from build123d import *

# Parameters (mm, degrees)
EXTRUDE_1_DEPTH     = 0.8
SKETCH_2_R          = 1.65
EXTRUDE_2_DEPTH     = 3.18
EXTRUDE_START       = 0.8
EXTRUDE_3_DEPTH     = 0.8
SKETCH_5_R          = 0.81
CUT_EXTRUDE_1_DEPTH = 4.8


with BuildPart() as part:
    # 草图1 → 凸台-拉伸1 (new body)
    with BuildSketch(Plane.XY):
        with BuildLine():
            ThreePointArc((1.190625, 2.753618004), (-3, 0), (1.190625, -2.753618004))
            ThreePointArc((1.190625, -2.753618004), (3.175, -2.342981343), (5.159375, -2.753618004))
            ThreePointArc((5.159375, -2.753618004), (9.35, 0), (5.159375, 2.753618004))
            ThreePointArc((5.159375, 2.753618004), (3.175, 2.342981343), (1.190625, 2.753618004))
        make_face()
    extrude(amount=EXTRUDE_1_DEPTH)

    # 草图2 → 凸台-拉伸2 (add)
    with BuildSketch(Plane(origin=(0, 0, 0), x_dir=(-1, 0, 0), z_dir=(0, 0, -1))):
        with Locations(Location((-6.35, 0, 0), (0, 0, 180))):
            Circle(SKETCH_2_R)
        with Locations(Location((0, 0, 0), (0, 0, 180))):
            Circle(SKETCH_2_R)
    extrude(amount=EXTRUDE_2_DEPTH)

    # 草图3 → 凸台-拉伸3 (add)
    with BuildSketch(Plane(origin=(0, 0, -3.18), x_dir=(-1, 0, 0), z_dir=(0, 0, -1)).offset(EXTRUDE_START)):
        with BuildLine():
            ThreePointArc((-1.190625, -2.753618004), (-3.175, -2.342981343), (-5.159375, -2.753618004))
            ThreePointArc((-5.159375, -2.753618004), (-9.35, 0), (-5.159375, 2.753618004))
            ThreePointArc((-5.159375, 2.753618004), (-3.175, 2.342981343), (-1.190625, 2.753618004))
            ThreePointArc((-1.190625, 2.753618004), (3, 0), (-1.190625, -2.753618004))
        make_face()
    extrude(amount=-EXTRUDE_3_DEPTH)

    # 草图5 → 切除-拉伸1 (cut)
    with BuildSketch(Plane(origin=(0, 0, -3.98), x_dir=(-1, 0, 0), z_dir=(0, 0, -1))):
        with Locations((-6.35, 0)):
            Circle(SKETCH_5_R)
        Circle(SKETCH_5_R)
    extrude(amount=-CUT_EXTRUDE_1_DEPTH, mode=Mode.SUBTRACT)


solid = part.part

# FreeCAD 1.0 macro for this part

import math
import FreeCAD as App
import Part
import Sketcher

V = App.Vector
Q = App.Units.Quantity

doc = App.newDocument("Part")
body = doc.addObject("PartDesign::Body", "Body")

# Sketch on XY plane
sketch1 = doc.addObject("Sketcher::SketchObject", "Sketch")
body.addObject(sketch1)
sketch1.AttachmentSupport = (doc.XY_Plane, [""])
sketch1.MapMode = "FlatFace"
sketch1.addGeometry([
    Part.ArcOfCircle(Part.Circle(V(0, 0, 0), V(0, 0, 1), 3), math.radians(66.617036), math.radians(293.382964)),
    Part.ArcOfCircle(Part.Circle(V(3.175, -7.342981, 0), V(0, 0, 1), 5), math.radians(66.617036), math.radians(113.382964)),
    Part.ArcOfCircle(Part.Circle(V(6.35, 0, 0), V(0, 0, 1), 3), math.radians(-113.382964), math.radians(113.382964)),
    Part.ArcOfCircle(Part.Circle(V(3.175, 7.342981, 0), V(0, 0, 1), 5), math.radians(-113.382964), math.radians(-66.617036)),
], False)
sketch1.addConstraint([
    Sketcher.Constraint("Tangent", 0, 2, 1, 2),
    Sketcher.Constraint("Tangent", 1, 1, 2, 1),
    Sketcher.Constraint("Tangent", 2, 2, 3, 2),
    Sketcher.Constraint("Tangent", 3, 1, 0, 1),
    Sketcher.Constraint("Coincident", 0, 3, -1, 1),
    Sketcher.Constraint("Equal", 0, 2),
    Sketcher.Constraint("Equal", 1, 3),
    Sketcher.Constraint("PointOnObject", 2, 3, -1),
    Sketcher.Constraint("Radius", 0, Q("3 mm")),
    Sketcher.Constraint("Radius", 1, Q("5 mm")),
    Sketcher.Constraint("DistanceX", -1, 1, 2, 3, Q("6.35 mm")),
])
pad1 = doc.addObject("PartDesign::Pad", "Pad")
body.addObject(pad1)
pad1.Profile = sketch1
pad1.Length = 0.8

# Sketch on XY plane
sketch2 = doc.addObject("Sketcher::SketchObject", "Sketch001")
body.addObject(sketch2)
sketch2.AttachmentSupport = (doc.XY_Plane, [""])
sketch2.MapMode = "FlatFace"
sketch2.addGeometry([
    Part.Circle(V(6.35, 0, 0), V(0, 0, 1), 1.65),
    Part.Circle(V(0, 0, 0), V(0, 0, 1), 1.65),
], False)
sketch2.addConstraint([
    Sketcher.Constraint("Coincident", 1, 3, -1, 1),
    Sketcher.Constraint("Equal", 0, 1),
    Sketcher.Constraint("PointOnObject", 0, 3, -1),
    Sketcher.Constraint("Diameter", 0, Q("3.3 mm")),
    Sketcher.Constraint("DistanceX", -1, 1, 0, 3, Q("6.35 mm")),
])
pad2 = doc.addObject("PartDesign::Pad", "Pad001")
body.addObject(pad2)
pad2.Profile = sketch2
pad2.Length = 3.18
pad2.Reversed = True

# Sketch on XY plane
sketch3 = doc.addObject("Sketcher::SketchObject", "Sketch002")
body.addObject(sketch3)
sketch3.AttachmentSupport = (doc.XY_Plane, [""])
sketch3.MapMode = "FlatFace"
sketch3.AttachmentOffset = App.Placement(V(0, 0, -3.98), App.Rotation())
sketch3.addGeometry([
    Part.ArcOfCircle(Part.Circle(V(3.175, -7.342981, 0), V(0, 0, 1), 5), math.radians(66.617036), math.radians(113.382964)),
    Part.ArcOfCircle(Part.Circle(V(0, 0, 0), V(0, 0, 1), 3), math.radians(66.617036), math.radians(293.382964)),
    Part.ArcOfCircle(Part.Circle(V(3.175, 7.342981, 0), V(0, 0, 1), 5), math.radians(-113.382964), math.radians(-66.617036)),
    Part.ArcOfCircle(Part.Circle(V(6.35, 0, 0), V(0, 0, 1), 3), math.radians(-113.382964), math.radians(113.382964)),
], False)
sketch3.addConstraint([
    Sketcher.Constraint("Tangent", 0, 2, 1, 2),
    Sketcher.Constraint("Tangent", 1, 1, 2, 1),
    Sketcher.Constraint("Tangent", 2, 2, 3, 2),
    Sketcher.Constraint("Tangent", 3, 1, 0, 1),
    Sketcher.Constraint("Coincident", 1, 3, -1, 1),
    Sketcher.Constraint("Equal", 0, 2),
    Sketcher.Constraint("Equal", 1, 3),
    Sketcher.Constraint("PointOnObject", 3, 3, -1),
    Sketcher.Constraint("Radius", 0, Q("5 mm")),
    Sketcher.Constraint("Radius", 1, Q("3 mm")),
    Sketcher.Constraint("DistanceX", -1, 1, 3, 3, Q("6.35 mm")),
])
pad3 = doc.addObject("PartDesign::Pad", "Pad002")
body.addObject(pad3)
pad3.Profile = sketch3
pad3.Length = 0.8

# Sketch on XY plane
sketch4 = doc.addObject("Sketcher::SketchObject", "Sketch003")
body.addObject(sketch4)
sketch4.AttachmentSupport = (doc.XY_Plane, [""])
sketch4.MapMode = "FlatFace"
sketch4.AttachmentOffset = App.Placement(V(0, 0, -3.98), App.Rotation())
sketch4.addGeometry([
    Part.Circle(V(6.35, 0, 0), V(0, 0, 1), 0.81),
    Part.Circle(V(0, 0, 0), V(0, 0, 1), 0.81),
], False)
sketch4.addConstraint([
    Sketcher.Constraint("Coincident", 1, 3, -1, 1),
    Sketcher.Constraint("Equal", 0, 1),
    Sketcher.Constraint("PointOnObject", 0, 3, -1),
    Sketcher.Constraint("Diameter", 0, Q("1.62 mm")),
    Sketcher.Constraint("DistanceX", -1, 1, 0, 3, Q("6.35 mm")),
])
pocket1 = doc.addObject("PartDesign::Pocket", "Pocket")
body.addObject(pocket1)
pocket1.Profile = sketch4
pocket1.Length = 4.8
pocket1.Reversed = True

doc.recompute()
